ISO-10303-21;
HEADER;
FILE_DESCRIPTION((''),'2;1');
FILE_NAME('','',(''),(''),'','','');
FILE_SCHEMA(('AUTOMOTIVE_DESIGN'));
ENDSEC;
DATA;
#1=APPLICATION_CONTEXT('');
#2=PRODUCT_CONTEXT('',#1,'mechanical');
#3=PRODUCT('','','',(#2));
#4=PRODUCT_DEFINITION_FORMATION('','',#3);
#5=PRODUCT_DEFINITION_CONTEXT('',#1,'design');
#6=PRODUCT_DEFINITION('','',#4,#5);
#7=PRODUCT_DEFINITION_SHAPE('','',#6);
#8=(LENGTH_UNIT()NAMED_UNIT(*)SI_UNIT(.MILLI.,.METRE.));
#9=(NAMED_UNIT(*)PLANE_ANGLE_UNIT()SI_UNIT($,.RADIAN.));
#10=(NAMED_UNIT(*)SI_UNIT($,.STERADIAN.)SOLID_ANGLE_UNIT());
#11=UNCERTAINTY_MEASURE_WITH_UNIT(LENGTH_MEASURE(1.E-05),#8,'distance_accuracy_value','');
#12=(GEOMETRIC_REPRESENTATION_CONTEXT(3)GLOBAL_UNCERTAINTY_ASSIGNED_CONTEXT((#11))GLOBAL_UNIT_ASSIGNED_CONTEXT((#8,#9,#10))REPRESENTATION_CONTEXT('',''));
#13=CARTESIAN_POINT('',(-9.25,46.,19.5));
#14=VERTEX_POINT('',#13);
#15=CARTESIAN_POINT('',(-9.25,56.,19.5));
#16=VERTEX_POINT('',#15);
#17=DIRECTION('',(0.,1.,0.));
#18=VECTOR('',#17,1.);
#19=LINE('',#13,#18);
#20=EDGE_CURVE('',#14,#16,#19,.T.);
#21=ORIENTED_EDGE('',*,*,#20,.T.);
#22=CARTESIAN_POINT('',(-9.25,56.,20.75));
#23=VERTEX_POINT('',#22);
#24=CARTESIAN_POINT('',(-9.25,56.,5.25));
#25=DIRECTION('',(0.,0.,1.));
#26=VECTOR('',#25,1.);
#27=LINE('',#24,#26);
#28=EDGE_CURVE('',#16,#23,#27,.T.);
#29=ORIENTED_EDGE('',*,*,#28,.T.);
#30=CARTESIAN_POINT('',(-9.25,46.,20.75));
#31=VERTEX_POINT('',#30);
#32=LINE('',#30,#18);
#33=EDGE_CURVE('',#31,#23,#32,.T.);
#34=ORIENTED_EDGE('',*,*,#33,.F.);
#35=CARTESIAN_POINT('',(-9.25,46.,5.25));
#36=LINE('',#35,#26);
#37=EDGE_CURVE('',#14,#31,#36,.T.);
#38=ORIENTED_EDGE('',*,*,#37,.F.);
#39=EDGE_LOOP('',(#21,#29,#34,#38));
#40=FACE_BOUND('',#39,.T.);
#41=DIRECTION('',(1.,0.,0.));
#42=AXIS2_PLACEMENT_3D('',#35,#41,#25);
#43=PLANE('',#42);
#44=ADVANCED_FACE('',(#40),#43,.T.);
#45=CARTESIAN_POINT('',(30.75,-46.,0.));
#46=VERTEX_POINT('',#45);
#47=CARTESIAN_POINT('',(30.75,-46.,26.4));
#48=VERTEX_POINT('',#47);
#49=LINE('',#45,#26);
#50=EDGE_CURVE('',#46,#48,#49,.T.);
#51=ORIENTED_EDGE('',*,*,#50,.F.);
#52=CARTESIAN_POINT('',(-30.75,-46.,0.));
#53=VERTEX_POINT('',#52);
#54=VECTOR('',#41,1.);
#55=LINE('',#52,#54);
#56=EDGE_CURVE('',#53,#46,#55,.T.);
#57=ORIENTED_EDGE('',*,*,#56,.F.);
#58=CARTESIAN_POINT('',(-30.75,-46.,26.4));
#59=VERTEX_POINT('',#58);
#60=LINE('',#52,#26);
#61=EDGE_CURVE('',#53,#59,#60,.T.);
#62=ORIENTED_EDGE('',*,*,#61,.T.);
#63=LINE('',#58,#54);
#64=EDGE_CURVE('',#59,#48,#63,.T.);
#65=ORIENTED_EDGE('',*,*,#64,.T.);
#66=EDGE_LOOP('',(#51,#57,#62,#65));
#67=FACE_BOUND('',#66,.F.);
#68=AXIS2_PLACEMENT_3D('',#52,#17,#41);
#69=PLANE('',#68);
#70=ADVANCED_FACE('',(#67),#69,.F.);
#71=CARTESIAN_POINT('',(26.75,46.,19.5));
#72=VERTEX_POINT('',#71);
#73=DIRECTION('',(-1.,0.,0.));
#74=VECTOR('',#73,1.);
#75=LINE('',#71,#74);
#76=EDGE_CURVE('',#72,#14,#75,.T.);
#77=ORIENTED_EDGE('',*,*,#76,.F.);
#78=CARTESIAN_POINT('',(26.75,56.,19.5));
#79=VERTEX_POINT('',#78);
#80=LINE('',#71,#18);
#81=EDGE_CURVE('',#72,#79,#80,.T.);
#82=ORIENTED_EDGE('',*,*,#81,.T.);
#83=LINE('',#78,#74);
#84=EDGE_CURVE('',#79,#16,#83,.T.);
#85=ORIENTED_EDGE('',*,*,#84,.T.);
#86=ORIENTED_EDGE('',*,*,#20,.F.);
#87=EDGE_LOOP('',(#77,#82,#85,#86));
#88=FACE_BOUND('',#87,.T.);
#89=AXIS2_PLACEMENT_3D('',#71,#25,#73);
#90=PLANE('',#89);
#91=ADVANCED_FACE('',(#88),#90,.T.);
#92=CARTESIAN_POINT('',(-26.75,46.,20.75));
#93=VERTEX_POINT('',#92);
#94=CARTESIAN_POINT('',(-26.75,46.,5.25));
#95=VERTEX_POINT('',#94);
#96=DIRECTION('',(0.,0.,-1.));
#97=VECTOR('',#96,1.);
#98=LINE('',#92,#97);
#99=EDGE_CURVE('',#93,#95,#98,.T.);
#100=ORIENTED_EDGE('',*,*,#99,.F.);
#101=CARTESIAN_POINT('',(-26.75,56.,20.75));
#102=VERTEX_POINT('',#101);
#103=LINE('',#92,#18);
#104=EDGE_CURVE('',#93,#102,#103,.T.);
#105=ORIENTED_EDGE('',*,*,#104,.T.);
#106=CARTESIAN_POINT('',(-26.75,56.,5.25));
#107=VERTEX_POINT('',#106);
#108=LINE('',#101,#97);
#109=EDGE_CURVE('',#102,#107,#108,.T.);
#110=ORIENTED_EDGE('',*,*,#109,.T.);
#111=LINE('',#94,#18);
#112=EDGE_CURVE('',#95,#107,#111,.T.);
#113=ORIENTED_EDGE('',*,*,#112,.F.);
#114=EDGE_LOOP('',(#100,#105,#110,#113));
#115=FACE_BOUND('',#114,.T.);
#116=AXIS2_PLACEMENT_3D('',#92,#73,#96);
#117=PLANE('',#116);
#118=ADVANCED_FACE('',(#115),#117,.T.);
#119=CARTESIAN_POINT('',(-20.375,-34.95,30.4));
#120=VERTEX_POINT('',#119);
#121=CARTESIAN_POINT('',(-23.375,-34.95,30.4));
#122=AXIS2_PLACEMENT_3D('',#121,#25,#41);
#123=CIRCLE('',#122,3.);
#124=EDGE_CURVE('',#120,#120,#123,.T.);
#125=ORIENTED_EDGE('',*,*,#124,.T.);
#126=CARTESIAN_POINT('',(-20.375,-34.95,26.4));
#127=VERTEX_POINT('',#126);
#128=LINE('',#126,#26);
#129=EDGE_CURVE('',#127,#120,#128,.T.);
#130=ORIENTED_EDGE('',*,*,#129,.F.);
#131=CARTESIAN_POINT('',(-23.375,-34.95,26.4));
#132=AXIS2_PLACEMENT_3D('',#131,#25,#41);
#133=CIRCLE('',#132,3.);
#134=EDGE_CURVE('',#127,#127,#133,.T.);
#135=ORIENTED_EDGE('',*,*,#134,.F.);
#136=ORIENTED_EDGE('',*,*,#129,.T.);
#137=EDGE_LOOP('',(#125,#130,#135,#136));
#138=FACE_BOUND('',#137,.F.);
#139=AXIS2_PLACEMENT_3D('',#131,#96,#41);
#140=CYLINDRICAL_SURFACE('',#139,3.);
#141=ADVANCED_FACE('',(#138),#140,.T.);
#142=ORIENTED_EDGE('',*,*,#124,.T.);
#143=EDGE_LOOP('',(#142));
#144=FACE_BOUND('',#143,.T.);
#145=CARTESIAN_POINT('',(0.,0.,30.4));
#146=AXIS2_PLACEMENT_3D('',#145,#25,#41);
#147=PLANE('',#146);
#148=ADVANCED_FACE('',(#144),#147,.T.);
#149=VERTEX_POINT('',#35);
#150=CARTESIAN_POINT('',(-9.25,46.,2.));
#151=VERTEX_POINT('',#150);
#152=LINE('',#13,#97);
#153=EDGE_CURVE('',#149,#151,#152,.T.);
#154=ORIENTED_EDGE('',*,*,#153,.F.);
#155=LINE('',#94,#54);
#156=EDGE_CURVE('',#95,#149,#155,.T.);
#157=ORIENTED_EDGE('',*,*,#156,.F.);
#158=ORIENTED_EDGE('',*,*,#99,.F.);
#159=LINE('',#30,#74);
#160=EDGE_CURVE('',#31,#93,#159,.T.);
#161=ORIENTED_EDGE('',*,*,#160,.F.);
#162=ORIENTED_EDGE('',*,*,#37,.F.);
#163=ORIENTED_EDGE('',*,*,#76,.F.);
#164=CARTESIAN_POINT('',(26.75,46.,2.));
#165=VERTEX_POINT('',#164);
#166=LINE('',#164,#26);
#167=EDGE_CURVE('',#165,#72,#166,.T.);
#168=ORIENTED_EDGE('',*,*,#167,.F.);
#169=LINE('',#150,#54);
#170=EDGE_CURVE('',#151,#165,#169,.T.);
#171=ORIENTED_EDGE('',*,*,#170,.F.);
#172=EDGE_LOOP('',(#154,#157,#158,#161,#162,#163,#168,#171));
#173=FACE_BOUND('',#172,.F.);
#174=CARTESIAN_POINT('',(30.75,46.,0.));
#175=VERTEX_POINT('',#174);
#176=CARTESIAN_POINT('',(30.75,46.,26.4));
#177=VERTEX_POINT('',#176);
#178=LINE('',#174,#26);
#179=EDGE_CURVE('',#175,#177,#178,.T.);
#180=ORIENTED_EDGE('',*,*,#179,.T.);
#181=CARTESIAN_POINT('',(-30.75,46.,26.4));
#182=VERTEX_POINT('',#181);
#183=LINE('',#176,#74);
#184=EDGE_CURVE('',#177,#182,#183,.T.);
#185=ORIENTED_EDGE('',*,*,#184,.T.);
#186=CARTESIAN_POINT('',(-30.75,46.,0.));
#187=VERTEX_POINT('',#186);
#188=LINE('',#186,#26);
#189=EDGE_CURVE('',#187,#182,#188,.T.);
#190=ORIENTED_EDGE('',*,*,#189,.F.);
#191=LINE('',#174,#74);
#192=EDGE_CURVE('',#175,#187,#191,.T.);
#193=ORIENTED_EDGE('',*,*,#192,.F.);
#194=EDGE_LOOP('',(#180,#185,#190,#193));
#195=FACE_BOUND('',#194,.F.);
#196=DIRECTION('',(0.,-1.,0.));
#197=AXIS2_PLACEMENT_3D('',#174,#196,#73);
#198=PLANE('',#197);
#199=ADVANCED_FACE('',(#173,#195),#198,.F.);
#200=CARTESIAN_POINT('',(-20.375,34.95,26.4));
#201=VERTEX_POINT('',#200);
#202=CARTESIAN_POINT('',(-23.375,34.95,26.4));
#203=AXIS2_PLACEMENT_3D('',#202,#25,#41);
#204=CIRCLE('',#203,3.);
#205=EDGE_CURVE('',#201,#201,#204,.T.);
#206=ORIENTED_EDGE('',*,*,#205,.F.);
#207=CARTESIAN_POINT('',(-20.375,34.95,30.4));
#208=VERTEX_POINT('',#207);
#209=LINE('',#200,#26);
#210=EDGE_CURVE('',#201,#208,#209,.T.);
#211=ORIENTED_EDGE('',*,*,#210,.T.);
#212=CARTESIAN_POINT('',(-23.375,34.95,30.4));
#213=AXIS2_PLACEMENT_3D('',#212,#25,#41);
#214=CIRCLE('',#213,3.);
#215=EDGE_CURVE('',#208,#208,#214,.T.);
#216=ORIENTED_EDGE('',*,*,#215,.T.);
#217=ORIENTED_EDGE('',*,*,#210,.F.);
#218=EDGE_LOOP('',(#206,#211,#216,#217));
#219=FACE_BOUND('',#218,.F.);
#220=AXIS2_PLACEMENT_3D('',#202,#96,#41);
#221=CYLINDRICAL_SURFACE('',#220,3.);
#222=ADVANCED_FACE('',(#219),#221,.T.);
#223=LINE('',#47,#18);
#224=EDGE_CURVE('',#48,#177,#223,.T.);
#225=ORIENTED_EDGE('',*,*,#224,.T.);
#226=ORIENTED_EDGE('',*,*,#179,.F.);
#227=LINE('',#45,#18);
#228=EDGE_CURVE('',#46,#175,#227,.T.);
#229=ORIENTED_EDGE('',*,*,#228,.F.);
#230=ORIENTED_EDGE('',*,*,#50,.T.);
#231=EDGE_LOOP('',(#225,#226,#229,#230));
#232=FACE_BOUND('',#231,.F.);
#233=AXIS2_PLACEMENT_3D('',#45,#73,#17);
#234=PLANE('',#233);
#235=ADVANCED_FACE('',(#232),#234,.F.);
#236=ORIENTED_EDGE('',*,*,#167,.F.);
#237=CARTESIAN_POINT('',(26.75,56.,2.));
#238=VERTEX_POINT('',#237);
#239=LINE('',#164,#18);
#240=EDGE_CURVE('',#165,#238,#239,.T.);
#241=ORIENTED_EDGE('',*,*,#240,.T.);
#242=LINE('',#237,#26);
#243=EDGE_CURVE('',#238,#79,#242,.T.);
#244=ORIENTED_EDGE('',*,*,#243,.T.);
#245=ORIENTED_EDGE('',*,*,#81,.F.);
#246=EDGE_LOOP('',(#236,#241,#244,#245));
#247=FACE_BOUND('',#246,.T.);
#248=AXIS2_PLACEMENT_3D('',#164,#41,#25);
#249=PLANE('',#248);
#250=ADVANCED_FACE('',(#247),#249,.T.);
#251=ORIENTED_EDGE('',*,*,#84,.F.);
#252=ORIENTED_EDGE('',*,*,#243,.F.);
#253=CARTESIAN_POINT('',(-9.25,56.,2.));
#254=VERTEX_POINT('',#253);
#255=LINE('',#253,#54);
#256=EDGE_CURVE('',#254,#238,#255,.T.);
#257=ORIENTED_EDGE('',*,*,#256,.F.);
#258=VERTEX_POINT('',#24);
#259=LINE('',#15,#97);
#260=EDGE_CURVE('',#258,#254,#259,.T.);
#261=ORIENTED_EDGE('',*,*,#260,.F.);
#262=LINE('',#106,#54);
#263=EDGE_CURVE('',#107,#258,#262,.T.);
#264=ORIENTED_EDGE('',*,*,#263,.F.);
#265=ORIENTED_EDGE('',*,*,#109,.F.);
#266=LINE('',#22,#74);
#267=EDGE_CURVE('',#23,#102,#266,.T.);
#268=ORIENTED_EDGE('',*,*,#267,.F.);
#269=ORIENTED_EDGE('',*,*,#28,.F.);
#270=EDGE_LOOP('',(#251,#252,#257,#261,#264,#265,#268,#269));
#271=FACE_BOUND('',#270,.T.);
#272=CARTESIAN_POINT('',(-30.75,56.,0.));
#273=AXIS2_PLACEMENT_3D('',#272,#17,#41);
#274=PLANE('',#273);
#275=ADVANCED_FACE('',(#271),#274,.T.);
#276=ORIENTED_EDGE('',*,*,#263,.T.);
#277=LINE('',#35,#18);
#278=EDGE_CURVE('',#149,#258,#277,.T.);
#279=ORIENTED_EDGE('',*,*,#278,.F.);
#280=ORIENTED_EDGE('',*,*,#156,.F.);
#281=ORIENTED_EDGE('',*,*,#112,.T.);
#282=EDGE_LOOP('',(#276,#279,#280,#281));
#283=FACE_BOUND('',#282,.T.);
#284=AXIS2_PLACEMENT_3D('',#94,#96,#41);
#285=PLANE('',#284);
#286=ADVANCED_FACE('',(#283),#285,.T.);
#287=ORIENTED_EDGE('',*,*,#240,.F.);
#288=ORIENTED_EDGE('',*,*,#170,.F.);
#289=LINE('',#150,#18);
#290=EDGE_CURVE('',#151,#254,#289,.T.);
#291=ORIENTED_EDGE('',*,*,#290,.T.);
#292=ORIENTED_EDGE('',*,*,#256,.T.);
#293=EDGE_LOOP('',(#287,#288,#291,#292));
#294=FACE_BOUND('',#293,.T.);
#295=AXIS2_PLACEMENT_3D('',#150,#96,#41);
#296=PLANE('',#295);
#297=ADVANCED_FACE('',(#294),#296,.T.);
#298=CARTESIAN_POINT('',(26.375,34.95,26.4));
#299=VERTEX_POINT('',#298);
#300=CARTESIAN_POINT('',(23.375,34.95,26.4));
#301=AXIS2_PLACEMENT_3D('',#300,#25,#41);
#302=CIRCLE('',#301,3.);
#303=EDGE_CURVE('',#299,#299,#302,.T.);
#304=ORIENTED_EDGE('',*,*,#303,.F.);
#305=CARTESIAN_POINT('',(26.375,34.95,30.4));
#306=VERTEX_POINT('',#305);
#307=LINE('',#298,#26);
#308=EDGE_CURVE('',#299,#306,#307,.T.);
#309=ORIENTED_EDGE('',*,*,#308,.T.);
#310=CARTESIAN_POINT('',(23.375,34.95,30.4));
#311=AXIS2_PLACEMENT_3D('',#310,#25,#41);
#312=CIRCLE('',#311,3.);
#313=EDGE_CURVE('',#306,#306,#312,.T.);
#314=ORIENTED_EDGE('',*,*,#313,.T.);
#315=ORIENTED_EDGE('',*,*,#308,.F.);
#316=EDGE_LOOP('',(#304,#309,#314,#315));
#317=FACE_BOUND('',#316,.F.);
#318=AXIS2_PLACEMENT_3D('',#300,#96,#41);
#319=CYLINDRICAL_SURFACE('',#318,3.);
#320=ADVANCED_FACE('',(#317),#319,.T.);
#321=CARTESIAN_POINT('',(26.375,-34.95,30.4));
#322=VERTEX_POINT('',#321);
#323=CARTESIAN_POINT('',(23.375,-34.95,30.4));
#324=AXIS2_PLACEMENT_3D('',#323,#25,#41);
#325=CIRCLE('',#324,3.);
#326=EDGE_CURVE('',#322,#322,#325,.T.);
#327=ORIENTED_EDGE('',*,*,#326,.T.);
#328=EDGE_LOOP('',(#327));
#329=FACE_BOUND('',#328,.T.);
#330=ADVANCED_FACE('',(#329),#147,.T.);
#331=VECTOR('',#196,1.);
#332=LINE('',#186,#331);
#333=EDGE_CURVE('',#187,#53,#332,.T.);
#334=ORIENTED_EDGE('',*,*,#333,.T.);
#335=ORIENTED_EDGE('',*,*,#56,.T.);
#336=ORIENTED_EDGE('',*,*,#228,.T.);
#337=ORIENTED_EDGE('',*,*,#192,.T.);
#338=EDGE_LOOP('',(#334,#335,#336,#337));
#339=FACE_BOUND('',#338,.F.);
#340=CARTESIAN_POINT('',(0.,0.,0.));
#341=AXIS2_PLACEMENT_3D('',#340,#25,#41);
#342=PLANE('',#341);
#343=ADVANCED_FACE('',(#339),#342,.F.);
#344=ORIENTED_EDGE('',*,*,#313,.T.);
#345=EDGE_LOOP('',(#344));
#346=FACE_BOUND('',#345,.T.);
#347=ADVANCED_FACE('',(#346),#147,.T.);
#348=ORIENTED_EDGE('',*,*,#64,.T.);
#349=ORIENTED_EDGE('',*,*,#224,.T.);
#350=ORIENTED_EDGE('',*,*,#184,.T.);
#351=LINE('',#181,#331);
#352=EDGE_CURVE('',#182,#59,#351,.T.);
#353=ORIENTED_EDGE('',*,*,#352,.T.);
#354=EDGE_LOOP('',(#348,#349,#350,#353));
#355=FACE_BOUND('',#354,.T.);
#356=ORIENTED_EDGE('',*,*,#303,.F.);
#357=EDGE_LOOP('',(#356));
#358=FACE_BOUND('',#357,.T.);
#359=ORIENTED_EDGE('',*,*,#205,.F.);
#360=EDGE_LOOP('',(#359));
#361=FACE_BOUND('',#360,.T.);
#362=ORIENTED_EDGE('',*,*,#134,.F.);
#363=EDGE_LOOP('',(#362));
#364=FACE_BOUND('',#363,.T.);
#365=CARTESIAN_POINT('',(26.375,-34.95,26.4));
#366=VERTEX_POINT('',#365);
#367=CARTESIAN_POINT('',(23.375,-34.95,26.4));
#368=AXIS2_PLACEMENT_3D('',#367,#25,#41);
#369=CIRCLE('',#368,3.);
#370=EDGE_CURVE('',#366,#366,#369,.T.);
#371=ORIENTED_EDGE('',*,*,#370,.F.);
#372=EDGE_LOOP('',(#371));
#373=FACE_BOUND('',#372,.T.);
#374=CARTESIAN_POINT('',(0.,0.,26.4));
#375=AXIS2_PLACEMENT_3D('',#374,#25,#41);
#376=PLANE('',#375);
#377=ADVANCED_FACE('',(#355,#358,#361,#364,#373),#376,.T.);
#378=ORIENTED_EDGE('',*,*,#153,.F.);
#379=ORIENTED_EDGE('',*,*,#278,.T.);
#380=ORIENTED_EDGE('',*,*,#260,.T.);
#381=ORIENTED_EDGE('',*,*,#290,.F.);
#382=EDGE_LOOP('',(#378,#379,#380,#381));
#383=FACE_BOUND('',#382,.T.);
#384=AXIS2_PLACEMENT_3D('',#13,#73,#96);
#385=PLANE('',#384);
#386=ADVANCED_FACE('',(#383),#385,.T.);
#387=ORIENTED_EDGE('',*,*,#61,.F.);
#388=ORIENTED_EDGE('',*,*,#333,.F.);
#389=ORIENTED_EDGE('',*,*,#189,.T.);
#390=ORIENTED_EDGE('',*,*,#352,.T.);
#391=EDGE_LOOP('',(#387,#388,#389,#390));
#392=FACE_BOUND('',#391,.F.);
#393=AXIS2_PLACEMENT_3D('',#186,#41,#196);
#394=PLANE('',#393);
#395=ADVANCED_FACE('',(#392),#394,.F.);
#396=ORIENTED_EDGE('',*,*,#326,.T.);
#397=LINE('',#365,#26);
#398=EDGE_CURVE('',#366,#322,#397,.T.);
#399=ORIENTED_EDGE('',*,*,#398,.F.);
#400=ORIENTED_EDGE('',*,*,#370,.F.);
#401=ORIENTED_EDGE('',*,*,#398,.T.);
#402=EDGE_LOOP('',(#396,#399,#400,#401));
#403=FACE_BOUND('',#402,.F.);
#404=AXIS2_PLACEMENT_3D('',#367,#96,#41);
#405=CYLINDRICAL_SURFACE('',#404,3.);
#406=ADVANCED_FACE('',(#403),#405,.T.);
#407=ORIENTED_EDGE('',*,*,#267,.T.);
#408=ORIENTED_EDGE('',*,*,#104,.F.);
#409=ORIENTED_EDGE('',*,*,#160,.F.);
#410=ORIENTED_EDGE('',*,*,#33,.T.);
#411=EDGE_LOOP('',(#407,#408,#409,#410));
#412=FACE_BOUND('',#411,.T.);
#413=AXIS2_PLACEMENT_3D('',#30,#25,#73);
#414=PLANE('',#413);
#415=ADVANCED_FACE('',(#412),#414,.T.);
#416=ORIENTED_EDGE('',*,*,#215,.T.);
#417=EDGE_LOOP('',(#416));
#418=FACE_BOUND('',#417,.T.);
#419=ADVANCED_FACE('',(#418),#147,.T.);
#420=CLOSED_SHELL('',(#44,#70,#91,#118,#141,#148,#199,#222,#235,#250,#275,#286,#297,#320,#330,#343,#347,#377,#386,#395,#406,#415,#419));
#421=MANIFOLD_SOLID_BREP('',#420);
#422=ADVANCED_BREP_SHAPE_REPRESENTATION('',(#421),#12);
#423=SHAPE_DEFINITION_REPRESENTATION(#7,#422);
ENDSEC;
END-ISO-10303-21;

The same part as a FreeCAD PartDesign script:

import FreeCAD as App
import Part
import Sketcher


def add_polygon(sketch, points):
    """Adds a closed chain of lines whose ends are joined by coincident constraints."""
    first, n = sketch.GeometryCount, len(points)
    for a, b in zip(points, points[1:] + points[:1]):
        sketch.addGeometry(Part.LineSegment(App.Vector(*a, 0), App.Vector(*b, 0)), False)
    for i in range(n):
        sketch.addConstraint(Sketcher.Constraint("Coincident", first + i, 2, first + (i + 1) % n, 1))

doc = App.newDocument("Part")
params = doc.addObject("Spreadsheet::Sheet", "Params")
for row, (alias, value) in enumerate([
    ("sketch1_height", "92 mm"),
    ("sketch1_width", "61.5 mm"),
    ("pad1_length", "26.4 mm"),
    ("sketch2_diameter", "6 mm"),
    ("pad2_length", "4 mm"),
    ("sketch3_width", "17.5 mm"),
    ("sketch3_height", "15.5 mm"),
    ("pad3_length", "10 mm"),
    ("sketch4_width", "36 mm"),
    ("pad4_length", "10 mm"),
], start=1):
    params.set(f"A{row}", alias)
    params.set(f"B{row}", "=" + value)
    params.setAlias(f"B{row}", alias)

body = doc.addObject("PartDesign::Body", "Body")

sketch1 = doc.addObject("Sketcher::SketchObject", "Sketch")
body.addObject(sketch1)
sketch1.AttachmentSupport = (doc.XY_Plane, [""])
sketch1.MapMode = "FlatFace"
add_polygon(sketch1, [(-30.75, 46), (-30.75, -46), (30.75, -46), (30.75, 46)])
sketch1.addConstraint(Sketcher.Constraint("Vertical", 0))
sketch1.addConstraint(Sketcher.Constraint("Horizontal", 1))
sketch1.addConstraint(Sketcher.Constraint("Vertical", 2))
sketch1.addConstraint(Sketcher.Constraint("Horizontal", 3))
sketch1.addConstraint(Sketcher.Constraint("Symmetric", 0, 2, 2, 2, -1, 1))
sketch1.addConstraint(Sketcher.Constraint("DistanceY", 0, 2, 0, 1, 92.0))
sketch1.addConstraint(Sketcher.Constraint("DistanceX", 1, 1, 1, 2, 61.5))
sketch1.setExpression("Constraints[9]", "Params.sketch1_height")
sketch1.setExpression("Constraints[10]", "Params.sketch1_width")
pad1 = doc.addObject("PartDesign::Pad", "Pad")
body.addObject(pad1)
pad1.Profile = sketch1
pad1.setExpression("Length", "Params.pad1_length")

sketch2 = doc.addObject("Sketcher::SketchObject", "Sketch001")
body.addObject(sketch2)
sketch2.AttachmentSupport = (doc.XY_Plane, [""])
sketch2.MapMode = "FlatFace"
sketch2.AttachmentOffset = App.Placement(App.Vector(0, 0, 26.4), App.Rotation())
sketch2.addGeometry(Part.Circle(App.Vector(-23.375, -34.95, 0), App.Vector(0, 0, 1), 3), False)
sketch2.addGeometry(Part.Circle(App.Vector(23.375, -34.95, 0), App.Vector(0, 0, 1), 3), False)
sketch2.addGeometry(Part.Circle(App.Vector(23.375, 34.95, 0), App.Vector(0, 0, 1), 3), False)
sketch2.addGeometry(Part.Circle(App.Vector(-23.375, 34.95, 0), App.Vector(0, 0, 1), 3), False)
sketch2.addConstraint(Sketcher.Constraint("Equal", 0, 1))
sketch2.addConstraint(Sketcher.Constraint("Equal", 1, 2))
sketch2.addConstraint(Sketcher.Constraint("Equal", 2, 3))
sketch2.addConstraint(Sketcher.Constraint("Symmetric", 0, 3, 2, 3, -1, 1))
sketch2.addConstraint(Sketcher.Constraint("Symmetric", 1, 3, 3, 3, -1, 1))
sketch2.addConstraint(Sketcher.Constraint("Symmetric", 0, 3, 1, 3, -2))
sketch2.addConstraint(Sketcher.Constraint("Diameter", 0, 6.0))
sketch2.addConstraint(Sketcher.Constraint("DistanceY", 1, 3, 2, 3, 69.9))
sketch2.addConstraint(Sketcher.Constraint("DistanceX", 0, 3, 1, 3, 46.75))
sketch2.setExpression("Constraints[6]", "Params.sketch2_diameter")
pad2 = doc.addObject("PartDesign::Pad", "Pad001")
body.addObject(pad2)
pad2.Profile = sketch2
pad2.setExpression("Length", "Params.pad2_length")

sketch3 = doc.addObject("Sketcher::SketchObject", "Sketch002")
body.addObject(sketch3)
sketch3.AttachmentSupport = (doc.XZ_Plane, [""])
sketch3.MapMode = "FlatFace"
sketch3.AttachmentOffset = App.Placement(App.Vector(0, 0, -46), App.Rotation())
add_polygon(sketch3, [(-9.25, 5.25), (-26.75, 5.25), (-26.75, 20.75), (-9.25, 20.75)])
sketch3.addConstraint(Sketcher.Constraint("Horizontal", 0))
sketch3.addConstraint(Sketcher.Constraint("Vertical", 1))
sketch3.addConstraint(Sketcher.Constraint("Horizontal", 2))
sketch3.addConstraint(Sketcher.Constraint("Vertical", 3))
sketch3.addConstraint(Sketcher.Constraint("DistanceX", 0, 2, 0, 1, 17.5))
sketch3.addConstraint(Sketcher.Constraint("DistanceY", 1, 1, 1, 2, 15.5))
sketch3.addConstraint(Sketcher.Constraint("DistanceY", -1, 1, 0, 2, 5.25))
sketch3.addConstraint(Sketcher.Constraint("DistanceX", 0, 2, -1, 1, 26.75))
sketch3.setExpression("Constraints[8]", "Params.sketch3_width")
sketch3.setExpression("Constraints[9]", "Params.sketch3_height")
pad3 = doc.addObject("PartDesign::Pad", "Pad002")
body.addObject(pad3)
pad3.Profile = sketch3
pad3.setExpression("Length", "Params.pad3_length")
pad3.Reversed = True

sketch4 = doc.addObject("Sketcher::SketchObject", "Sketch003")
body.addObject(sketch4)
sketch4.AttachmentSupport = (doc.XZ_Plane, [""])
sketch4.MapMode = "FlatFace"
sketch4.AttachmentOffset = App.Placement(App.Vector(0, 0, -46), App.Rotation())
add_polygon(sketch4, [(26.75, 2), (-9.25, 2), (-9.25, 19.5), (26.75, 19.5)])
sketch4.addConstraint(Sketcher.Constraint("Horizontal", 0))
sketch4.addConstraint(Sketcher.Constraint("Vertical", 1))
sketch4.addConstraint(Sketcher.Constraint("Horizontal", 2))
sketch4.addConstraint(Sketcher.Constraint("Vertical", 3))
sketch4.addConstraint(Sketcher.Constraint("DistanceY", -1, 1, 0, 2, 2.0))
sketch4.addConstraint(Sketcher.Constraint("DistanceY", -1, 1, 1, 2, 19.5))
sketch4.addConstraint(Sketcher.Constraint("DistanceX", 0, 2, 0, 1, 36.0))
sketch4.addConstraint(Sketcher.Constraint("DistanceX", 0, 2, -1, 1, 9.25))
sketch4.setExpression("Constraints[10]", "Params.sketch4_width")
pad4 = doc.addObject("PartDesign::Pad", "Pad003")
body.addObject(pad4)
pad4.Profile = sketch4
pad4.setExpression("Length", "Params.pad4_length")
pad4.Reversed = True

doc.recompute()
